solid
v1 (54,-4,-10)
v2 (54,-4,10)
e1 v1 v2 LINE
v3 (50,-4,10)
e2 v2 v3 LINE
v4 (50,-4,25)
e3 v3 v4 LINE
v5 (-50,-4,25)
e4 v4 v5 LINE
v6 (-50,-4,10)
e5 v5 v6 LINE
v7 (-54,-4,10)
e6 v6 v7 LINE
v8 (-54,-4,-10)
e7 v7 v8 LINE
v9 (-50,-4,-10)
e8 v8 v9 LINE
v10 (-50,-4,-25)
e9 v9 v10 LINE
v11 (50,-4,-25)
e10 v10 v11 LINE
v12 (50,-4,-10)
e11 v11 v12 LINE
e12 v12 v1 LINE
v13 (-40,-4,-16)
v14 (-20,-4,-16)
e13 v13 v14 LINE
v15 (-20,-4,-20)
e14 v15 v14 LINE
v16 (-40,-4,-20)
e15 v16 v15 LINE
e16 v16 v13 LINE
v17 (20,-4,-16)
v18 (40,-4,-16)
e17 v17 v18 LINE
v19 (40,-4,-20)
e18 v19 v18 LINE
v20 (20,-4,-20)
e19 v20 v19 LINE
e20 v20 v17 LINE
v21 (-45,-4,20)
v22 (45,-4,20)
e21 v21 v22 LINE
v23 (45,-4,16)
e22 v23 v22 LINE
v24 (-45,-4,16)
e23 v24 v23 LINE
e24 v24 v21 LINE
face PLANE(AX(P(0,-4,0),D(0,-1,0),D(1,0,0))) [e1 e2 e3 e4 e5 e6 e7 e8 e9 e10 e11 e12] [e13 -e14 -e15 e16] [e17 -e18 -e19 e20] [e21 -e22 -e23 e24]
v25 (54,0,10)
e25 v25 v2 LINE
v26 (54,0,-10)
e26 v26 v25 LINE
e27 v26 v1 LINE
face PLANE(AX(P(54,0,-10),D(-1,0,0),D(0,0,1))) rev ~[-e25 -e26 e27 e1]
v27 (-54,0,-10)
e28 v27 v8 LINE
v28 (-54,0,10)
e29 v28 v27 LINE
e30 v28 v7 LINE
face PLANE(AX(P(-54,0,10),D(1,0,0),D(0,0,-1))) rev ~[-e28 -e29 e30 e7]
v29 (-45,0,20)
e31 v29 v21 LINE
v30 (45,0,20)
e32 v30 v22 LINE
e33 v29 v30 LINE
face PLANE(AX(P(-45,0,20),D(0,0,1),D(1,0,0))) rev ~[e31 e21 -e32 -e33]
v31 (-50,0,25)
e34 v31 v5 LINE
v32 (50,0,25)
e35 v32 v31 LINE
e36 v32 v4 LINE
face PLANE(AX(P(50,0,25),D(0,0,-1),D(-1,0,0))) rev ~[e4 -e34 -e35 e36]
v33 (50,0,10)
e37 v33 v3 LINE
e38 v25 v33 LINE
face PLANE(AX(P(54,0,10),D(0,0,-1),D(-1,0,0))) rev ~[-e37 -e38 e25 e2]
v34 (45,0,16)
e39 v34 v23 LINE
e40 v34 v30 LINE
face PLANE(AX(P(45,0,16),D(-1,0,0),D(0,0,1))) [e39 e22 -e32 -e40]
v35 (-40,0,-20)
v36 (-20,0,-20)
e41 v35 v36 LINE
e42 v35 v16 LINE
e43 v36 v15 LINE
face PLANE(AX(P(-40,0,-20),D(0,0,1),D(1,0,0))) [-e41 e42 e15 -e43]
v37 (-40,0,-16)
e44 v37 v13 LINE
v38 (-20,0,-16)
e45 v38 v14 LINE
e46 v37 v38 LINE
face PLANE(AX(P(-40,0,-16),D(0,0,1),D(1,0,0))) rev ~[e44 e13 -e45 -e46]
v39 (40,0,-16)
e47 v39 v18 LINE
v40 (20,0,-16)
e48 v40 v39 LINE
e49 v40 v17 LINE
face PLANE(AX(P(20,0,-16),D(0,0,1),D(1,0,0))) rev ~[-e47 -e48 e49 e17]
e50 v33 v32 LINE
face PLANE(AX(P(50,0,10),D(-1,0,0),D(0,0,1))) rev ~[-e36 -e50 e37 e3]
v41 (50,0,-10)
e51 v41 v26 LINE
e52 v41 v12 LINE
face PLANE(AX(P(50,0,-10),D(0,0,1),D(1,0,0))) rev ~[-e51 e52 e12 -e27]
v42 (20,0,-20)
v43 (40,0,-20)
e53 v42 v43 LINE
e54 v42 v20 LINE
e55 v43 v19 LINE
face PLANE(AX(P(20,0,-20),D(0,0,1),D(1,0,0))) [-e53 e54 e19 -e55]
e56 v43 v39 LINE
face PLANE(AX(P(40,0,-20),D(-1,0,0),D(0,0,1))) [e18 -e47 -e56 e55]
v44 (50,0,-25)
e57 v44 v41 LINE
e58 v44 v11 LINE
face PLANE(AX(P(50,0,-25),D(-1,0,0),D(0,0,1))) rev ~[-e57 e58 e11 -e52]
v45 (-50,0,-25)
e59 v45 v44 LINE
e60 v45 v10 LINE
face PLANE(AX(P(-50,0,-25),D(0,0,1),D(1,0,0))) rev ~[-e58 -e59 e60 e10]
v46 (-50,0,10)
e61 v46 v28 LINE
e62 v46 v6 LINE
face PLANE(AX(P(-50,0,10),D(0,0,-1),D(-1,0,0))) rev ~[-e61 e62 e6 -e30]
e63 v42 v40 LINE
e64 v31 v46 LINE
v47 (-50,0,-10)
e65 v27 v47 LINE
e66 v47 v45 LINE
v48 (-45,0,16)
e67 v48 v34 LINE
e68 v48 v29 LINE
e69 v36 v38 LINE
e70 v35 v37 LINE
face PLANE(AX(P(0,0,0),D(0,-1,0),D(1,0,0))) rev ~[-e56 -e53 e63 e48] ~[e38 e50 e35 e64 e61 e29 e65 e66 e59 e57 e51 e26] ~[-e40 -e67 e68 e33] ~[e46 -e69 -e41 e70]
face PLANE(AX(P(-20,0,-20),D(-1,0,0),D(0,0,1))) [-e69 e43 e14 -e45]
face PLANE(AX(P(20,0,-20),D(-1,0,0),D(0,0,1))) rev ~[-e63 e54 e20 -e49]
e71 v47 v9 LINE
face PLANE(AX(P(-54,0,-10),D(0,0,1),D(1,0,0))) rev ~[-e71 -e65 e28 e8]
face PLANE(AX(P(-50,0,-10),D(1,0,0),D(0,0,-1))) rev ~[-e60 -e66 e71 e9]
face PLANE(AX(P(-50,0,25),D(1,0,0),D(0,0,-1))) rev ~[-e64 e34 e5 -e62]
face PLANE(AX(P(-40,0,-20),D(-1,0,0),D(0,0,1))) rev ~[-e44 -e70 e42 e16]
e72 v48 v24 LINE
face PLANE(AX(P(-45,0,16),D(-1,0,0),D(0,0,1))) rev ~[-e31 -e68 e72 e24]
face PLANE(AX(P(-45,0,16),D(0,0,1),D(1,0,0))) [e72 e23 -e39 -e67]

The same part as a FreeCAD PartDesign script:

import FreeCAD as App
import Part
import Sketcher

doc = App.newDocument("Part")
params = doc.addObject("Spreadsheet::Sheet", "Params")
for row, (alias, value) in enumerate([
    ("sketch1_width", "100 mm"),
    ("sketch1_width2", "4 mm"),
    ("sketch1_width3", "20 mm"),
    ("sketch1_width4", "90 mm"),
    ("sketch1_height", "15 mm"),
    ("pad1_length", "4 mm"),
], start=1):
    params.set(f"A{row}", alias)
    params.set(f"B{row}", "=" + value)
    params.setAlias(f"B{row}", alias)

body = doc.addObject("PartDesign::Body", "Body")

sketch1 = doc.addObject("Sketcher::SketchObject", "Sketch")
body.addObject(sketch1)
sketch1.AttachmentSupport = (doc.XZ_Plane, [""])
sketch1.MapMode = "FlatFace"
sketch1.addGeometry([
    Part.LineSegment(App.Vector(50, 10, 0), App.Vector(50, 25, 0)),
    Part.LineSegment(App.Vector(50, 25, 0), App.Vector(-50, 25, 0)),
    Part.LineSegment(App.Vector(-50, 25, 0), App.Vector(-50, 10, 0)),
    Part.LineSegment(App.Vector(-50, 10, 0), App.Vector(-54, 10, 0)),
    Part.LineSegment(App.Vector(-54, 10, 0), App.Vector(-54, -10, 0)),
    Part.LineSegment(App.Vector(-54, -10, 0), App.Vector(-50, -10, 0)),
    Part.LineSegment(App.Vector(-50, -10, 0), App.Vector(-50, -25, 0)),
    Part.LineSegment(App.Vector(-50, -25, 0), App.Vector(50, -25, 0)),
    Part.LineSegment(App.Vector(50, -25, 0), App.Vector(50, -10, 0)),
    Part.LineSegment(App.Vector(50, -10, 0), App.Vector(54, -10, 0)),
    Part.LineSegment(App.Vector(54, -10, 0), App.Vector(54, 10, 0)),
    Part.LineSegment(App.Vector(54, 10, 0), App.Vector(50, 10, 0)),
    Part.LineSegment(App.Vector(-20, -20, 0), App.Vector(-40, -20, 0)),
    Part.LineSegment(App.Vector(-40, -20, 0), App.Vector(-40, -16, 0)),
    Part.LineSegment(App.Vector(-40, -16, 0), App.Vector(-20, -16, 0)),
    Part.LineSegment(App.Vector(-20, -16, 0), App.Vector(-20, -20, 0)),
    Part.LineSegment(App.Vector(40, -20, 0), App.Vector(20, -20, 0)),
    Part.LineSegment(App.Vector(20, -20, 0), App.Vector(20, -16, 0)),
    Part.LineSegment(App.Vector(20, -16, 0), App.Vector(40, -16, 0)),
    Part.LineSegment(App.Vector(40, -16, 0), App.Vector(40, -20, 0)),
    Part.LineSegment(App.Vector(45, 16, 0), App.Vector(-45, 16, 0)),
    Part.LineSegment(App.Vector(-45, 16, 0), App.Vector(-45, 20, 0)),
    Part.LineSegment(App.Vector(-45, 20, 0), App.Vector(45, 20, 0)),
    Part.LineSegment(App.Vector(45, 20, 0), App.Vector(45, 16, 0)),
], False)
sketch1.addConstraint([
    Sketcher.Constraint("Coincident", 0, 2, 1, 1),
    Sketcher.Constraint("Coincident", 1, 2, 2, 1),
    Sketcher.Constraint("Coincident", 2, 2, 3, 1),
    Sketcher.Constraint("Coincident", 3, 2, 4, 1),
    Sketcher.Constraint("Coincident", 4, 2, 5, 1),
    Sketcher.Constraint("Coincident", 5, 2, 6, 1),
    Sketcher.Constraint("Coincident", 6, 2, 7, 1),
    Sketcher.Constraint("Coincident", 7, 2, 8, 1),
    Sketcher.Constraint("Coincident", 8, 2, 9, 1),
    Sketcher.Constraint("Coincident", 9, 2, 10, 1),
    Sketcher.Constraint("Coincident", 10, 2, 11, 1),
    Sketcher.Constraint("Coincident", 11, 2, 0, 1),
    Sketcher.Constraint("Coincident", 12, 2, 13, 1),
    Sketcher.Constraint("Coincident", 13, 2, 14, 1),
    Sketcher.Constraint("Coincident", 14, 2, 15, 1),
    Sketcher.Constraint("Coincident", 15, 2, 12, 1),
    Sketcher.Constraint("Coincident", 16, 2, 17, 1),
    Sketcher.Constraint("Coincident", 17, 2, 18, 1),
    Sketcher.Constraint("Coincident", 18, 2, 19, 1),
    Sketcher.Constraint("Coincident", 19, 2, 16, 1),
    Sketcher.Constraint("Coincident", 20, 2, 21, 1),
    Sketcher.Constraint("Coincident", 21, 2, 22, 1),
    Sketcher.Constraint("Coincident", 22, 2, 23, 1),
    Sketcher.Constraint("Coincident", 23, 2, 20, 1),
    Sketcher.Constraint("Vertical", 0),
    Sketcher.Constraint("Horizontal", 1),
    Sketcher.Constraint("Vertical", 2),
    Sketcher.Constraint("Horizontal", 3),
    Sketcher.Constraint("Vertical", 4),
    Sketcher.Constraint("Horizontal", 5),
    Sketcher.Constraint("Vertical", 6),
    Sketcher.Constraint("Horizontal", 7),
    Sketcher.Constraint("Vertical", 8),
    Sketcher.Constraint("Horizontal", 9),
    Sketcher.Constraint("Vertical", 10),
    Sketcher.Constraint("Horizontal", 11),
    Sketcher.Constraint("Horizontal", 12),
    Sketcher.Constraint("Vertical", 13),
    Sketcher.Constraint("Horizontal", 14),
    Sketcher.Constraint("Vertical", 15),
    Sketcher.Constraint("Horizontal", 16),
    Sketcher.Constraint("Vertical", 17),
    Sketcher.Constraint("Horizontal", 18),
    Sketcher.Constraint("Vertical", 19),
    Sketcher.Constraint("Horizontal", 20),
    Sketcher.Constraint("Vertical", 21),
    Sketcher.Constraint("Horizontal", 22),
    Sketcher.Constraint("Vertical", 23),
    Sketcher.Constraint("Symmetric", 0, 2, 6, 2, -1, 1),
    Sketcher.Constraint("Symmetric", 2, 2, 8, 2, -1, 1),
    Sketcher.Constraint("Symmetric", 4, 2, 10, 2, -1, 1),
    Sketcher.Constraint("Symmetric", 5, 2, 8, 2, -2),
    Sketcher.Constraint("Symmetric", 15, 2, 16, 2, -2),
    Sketcher.Constraint("Symmetric", 13, 2, 18, 2, -2),
    Sketcher.Constraint("Equal", 18, 4),
    Sketcher.Constraint("Equal", 11, 13),
    Sketcher.Constraint("Equal", 19, 21),
    Sketcher.Constraint("DistanceX", 1, 2, 1, 1, 100.0),
    Sketcher.Constraint("DistanceX", 3, 2, 3, 1, 4.0),
    Sketcher.Constraint("DistanceX", 12, 2, 12, 1, 20.0),
    Sketcher.Constraint("DistanceX", 20, 2, 20, 1, 90.0),
    Sketcher.Constraint("DistanceY", 0, 1, 0, 2, 15.0),
    Sketcher.Constraint("DistanceX", 12, 2, -1, 1, 40.0),
    Sketcher.Constraint("DistanceY", 12, 2, -1, 1, 20.0),
    Sketcher.Constraint("DistanceX", 20, 2, -1, 1, 45.0),
    Sketcher.Constraint("DistanceY", -1, 1, 20, 2, 16.0),
])
sketch1.setExpression("Constraints[57]", "Params.sketch1_width")
sketch1.setExpression("Constraints[58]", "Params.sketch1_width2")
sketch1.setExpression("Constraints[59]", "Params.sketch1_width3")
sketch1.setExpression("Constraints[60]", "Params.sketch1_width4")
sketch1.setExpression("Constraints[61]", "Params.sketch1_height")
pad1 = doc.addObject("PartDesign::Pad", "Pad")
body.addObject(pad1)
pad1.Profile = sketch1
pad1.setExpression("Length", "Params.pad1_length")

doc.recompute()
